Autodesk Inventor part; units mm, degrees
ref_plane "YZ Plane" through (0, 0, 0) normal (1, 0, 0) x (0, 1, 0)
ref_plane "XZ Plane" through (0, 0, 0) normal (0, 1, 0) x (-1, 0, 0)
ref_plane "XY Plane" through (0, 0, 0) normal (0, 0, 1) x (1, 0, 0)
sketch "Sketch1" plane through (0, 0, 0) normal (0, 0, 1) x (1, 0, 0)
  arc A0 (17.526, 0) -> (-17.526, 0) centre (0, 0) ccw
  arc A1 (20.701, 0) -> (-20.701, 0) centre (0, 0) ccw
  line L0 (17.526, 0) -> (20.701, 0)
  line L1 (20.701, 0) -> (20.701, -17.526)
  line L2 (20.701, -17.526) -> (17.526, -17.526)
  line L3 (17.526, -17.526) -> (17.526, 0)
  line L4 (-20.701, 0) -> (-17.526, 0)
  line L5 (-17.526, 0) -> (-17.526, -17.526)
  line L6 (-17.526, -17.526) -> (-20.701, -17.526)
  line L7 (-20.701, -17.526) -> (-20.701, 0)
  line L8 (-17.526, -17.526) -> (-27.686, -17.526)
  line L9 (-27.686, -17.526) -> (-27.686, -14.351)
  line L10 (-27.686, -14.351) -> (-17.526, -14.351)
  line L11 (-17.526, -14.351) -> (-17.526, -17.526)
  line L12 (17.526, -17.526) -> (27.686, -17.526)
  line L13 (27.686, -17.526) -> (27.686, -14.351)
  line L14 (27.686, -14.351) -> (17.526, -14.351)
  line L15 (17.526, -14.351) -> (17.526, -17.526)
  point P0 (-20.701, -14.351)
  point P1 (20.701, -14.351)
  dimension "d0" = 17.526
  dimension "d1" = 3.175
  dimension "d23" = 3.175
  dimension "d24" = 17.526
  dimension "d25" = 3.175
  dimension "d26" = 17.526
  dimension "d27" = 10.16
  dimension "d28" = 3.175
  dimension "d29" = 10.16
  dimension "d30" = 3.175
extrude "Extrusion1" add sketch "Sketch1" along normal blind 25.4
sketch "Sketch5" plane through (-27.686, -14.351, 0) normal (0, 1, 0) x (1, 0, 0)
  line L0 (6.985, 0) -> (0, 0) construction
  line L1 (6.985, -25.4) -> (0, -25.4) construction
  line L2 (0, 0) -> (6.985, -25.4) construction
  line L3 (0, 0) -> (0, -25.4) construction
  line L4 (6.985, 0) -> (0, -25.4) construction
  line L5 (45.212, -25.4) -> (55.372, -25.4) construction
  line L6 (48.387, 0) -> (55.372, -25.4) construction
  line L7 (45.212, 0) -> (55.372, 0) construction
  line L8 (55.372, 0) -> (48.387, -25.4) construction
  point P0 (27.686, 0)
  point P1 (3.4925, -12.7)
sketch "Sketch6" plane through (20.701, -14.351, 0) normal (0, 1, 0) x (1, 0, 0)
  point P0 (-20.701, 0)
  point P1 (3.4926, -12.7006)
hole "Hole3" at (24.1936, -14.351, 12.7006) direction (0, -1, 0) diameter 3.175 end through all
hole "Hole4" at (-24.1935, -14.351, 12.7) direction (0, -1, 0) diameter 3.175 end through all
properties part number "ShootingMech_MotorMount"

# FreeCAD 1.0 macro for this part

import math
import FreeCAD as App
import Part
import Sketcher
from FreeCAD import Vector
Q = App.Units.Quantity

doc = App.newDocument("Part")
body = doc.addObject("PartDesign::Body", "Body")

sketch1 = doc.addObject("Sketcher::SketchObject", "Sketch")
body.addObject(sketch1)
sketch1.AttachmentSupport = (doc.XY_Plane, [""])
sketch1.MapMode = "FlatFace"
sketch1.addGeometry([
    Part.ArcOfCircle(Part.Circle(Vector(0, 0, 0), Vector(0, 0, 1), 17.5), math.radians(0), math.radians(180)),
    Part.LineSegment(Vector(17.5, 0, 0), Vector(17.5, -17.5, 0)),
    Part.LineSegment(Vector(17.5, -17.5, 0), Vector(27.7, -17.5, 0)),
    Part.LineSegment(Vector(27.7, -17.5, 0), Vector(27.7, -14.4, 0)),
    Part.LineSegment(Vector(27.7, -14.4, 0), Vector(20.7, -14.4, 0)),
    Part.LineSegment(Vector(20.7, -14.4, 0), Vector(20.7, 0, 0)),
    Part.ArcOfCircle(Part.Circle(Vector(0, 0, 0), Vector(0, 0, 1), 20.7), math.radians(0), math.radians(180)),
    Part.LineSegment(Vector(-20.7, 0, 0), Vector(-20.7, -14.4, 0)),
    Part.LineSegment(Vector(-20.7, -14.4, 0), Vector(-27.7, -14.4, 0)),
    Part.LineSegment(Vector(-27.7, -14.4, 0), Vector(-27.7, -17.5, 0)),
    Part.LineSegment(Vector(-27.7, -17.5, 0), Vector(-17.5, -17.5, 0)),
    Part.LineSegment(Vector(-17.5, -17.5, 0), Vector(-17.5, 0, 0)),
], False)
sketch1.addConstraint([
    Sketcher.Constraint("Tangent", 0, 1, 1, 1),
    Sketcher.Constraint("Coincident", 1, 2, 2, 1),
    Sketcher.Constraint("Coincident", 2, 2, 3, 1),
    Sketcher.Constraint("Coincident", 3, 2, 4, 1),
    Sketcher.Constraint("Coincident", 4, 2, 5, 1),
    Sketcher.Constraint("Tangent", 5, 2, 6, 1),
    Sketcher.Constraint("Tangent", 6, 2, 7, 1),
    Sketcher.Constraint("Coincident", 7, 2, 8, 1),
    Sketcher.Constraint("Coincident", 8, 2, 9, 1),
    Sketcher.Constraint("Coincident", 9, 2, 10, 1),
    Sketcher.Constraint("Coincident", 10, 2, 11, 1),
    Sketcher.Constraint("Tangent", 11, 2, 0, 2),
    Sketcher.Constraint("Vertical", 1),
    Sketcher.Constraint("Horizontal", 2),
    Sketcher.Constraint("Vertical", 3),
    Sketcher.Constraint("Horizontal", 4),
    Sketcher.Constraint("Vertical", 5),
    Sketcher.Constraint("Vertical", 7),
    Sketcher.Constraint("Horizontal", 8),
    Sketcher.Constraint("Vertical", 9),
    Sketcher.Constraint("Horizontal", 10),
    Sketcher.Constraint("Vertical", 11),
    Sketcher.Constraint("Coincident", 0, 3, -1, 1),
    Sketcher.Constraint("Coincident", 6, 3, -1, 1),
    Sketcher.Constraint("Symmetric", 3, 2, 8, 2, -2),
    Sketcher.Constraint("Horizontal", 2, 2, 9, 2),
    Sketcher.Constraint("Radius", 0, Q("0.69 in")),
    Sketcher.Constraint("DistanceX", 2, 1, 2, 2, Q("0.4 in")),
    Sketcher.Constraint("DistanceY", 1, 2, 1, 1, Q("0.69 in")),
    Sketcher.Constraint("DistanceY", 3, 1, 3, 2, Q("0.125 in")),
    Sketcher.Constraint("Radius", 6, Q("0.815 in")),
])
pad1 = doc.addObject("PartDesign::Pad", "Pad")
body.addObject(pad1)
pad1.Profile = sketch1
pad1.Length = Q("1 in")

sketch2 = doc.addObject("Sketcher::SketchObject", "Sketch001")
body.addObject(sketch2)
sketch2.AttachmentSupport = (doc.XZ_Plane, [""])
sketch2.MapMode = "FlatFace"
sketch2.AttachmentOffset = App.Placement(Vector(0, 0, 0.565 * 25.4), App.Rotation())
sketch2.addGeometry(Part.Circle(Vector(24.2, 12.7, 0), Vector(0, 0, 1), 1.6), False)
sketch2.addConstraint([
    Sketcher.Constraint("Diameter", 0, Q("0.125 in")),
    Sketcher.Constraint("DistanceX", -1, 1, 0, 3, Q("0.9525 in")),
    Sketcher.Constraint("DistanceY", -1, 1, 0, 3, Q("12.7006 mm")),
])
doc.recompute()
hole = doc.addObject("PartDesign::Hole", "Hole")
body.addObject(hole)
hole.Profile = sketch2
hole.ThreadType = "None"
hole.Diameter = Q("0.125 in")
hole.DepthType = "ThroughAll"
hole.Reversed = True

sketch3 = doc.addObject("Sketcher::SketchObject", "Sketch002")
body.addObject(sketch3)
sketch3.AttachmentSupport = (doc.XZ_Plane, [""])
sketch3.MapMode = "FlatFace"
sketch3.AttachmentOffset = App.Placement(Vector(0, 0, 0.565 * 25.4), App.Rotation())
sketch3.addGeometry(Part.Circle(Vector(-24.2, 12.7, 0), Vector(0, 0, 1), 1.6), False)
sketch3.addConstraint([
    Sketcher.Constraint("Diameter", 0, Q("0.125 in")),
    Sketcher.Constraint("DistanceY", -1, 1, 0, 3, Q("0.5 in")),
    Sketcher.Constraint("DistanceX", 0, 3, -1, 1, Q("0.9525 in")),
])
doc.recompute()
hole2 = doc.addObject("PartDesign::Hole", "Hole001")
body.addObject(hole2)
hole2.Profile = sketch3
hole2.ThreadType = "None"
hole2.Diameter = Q("0.125 in")
hole2.DepthType = "ThroughAll"
hole2.Reversed = True

doc.recompute()
